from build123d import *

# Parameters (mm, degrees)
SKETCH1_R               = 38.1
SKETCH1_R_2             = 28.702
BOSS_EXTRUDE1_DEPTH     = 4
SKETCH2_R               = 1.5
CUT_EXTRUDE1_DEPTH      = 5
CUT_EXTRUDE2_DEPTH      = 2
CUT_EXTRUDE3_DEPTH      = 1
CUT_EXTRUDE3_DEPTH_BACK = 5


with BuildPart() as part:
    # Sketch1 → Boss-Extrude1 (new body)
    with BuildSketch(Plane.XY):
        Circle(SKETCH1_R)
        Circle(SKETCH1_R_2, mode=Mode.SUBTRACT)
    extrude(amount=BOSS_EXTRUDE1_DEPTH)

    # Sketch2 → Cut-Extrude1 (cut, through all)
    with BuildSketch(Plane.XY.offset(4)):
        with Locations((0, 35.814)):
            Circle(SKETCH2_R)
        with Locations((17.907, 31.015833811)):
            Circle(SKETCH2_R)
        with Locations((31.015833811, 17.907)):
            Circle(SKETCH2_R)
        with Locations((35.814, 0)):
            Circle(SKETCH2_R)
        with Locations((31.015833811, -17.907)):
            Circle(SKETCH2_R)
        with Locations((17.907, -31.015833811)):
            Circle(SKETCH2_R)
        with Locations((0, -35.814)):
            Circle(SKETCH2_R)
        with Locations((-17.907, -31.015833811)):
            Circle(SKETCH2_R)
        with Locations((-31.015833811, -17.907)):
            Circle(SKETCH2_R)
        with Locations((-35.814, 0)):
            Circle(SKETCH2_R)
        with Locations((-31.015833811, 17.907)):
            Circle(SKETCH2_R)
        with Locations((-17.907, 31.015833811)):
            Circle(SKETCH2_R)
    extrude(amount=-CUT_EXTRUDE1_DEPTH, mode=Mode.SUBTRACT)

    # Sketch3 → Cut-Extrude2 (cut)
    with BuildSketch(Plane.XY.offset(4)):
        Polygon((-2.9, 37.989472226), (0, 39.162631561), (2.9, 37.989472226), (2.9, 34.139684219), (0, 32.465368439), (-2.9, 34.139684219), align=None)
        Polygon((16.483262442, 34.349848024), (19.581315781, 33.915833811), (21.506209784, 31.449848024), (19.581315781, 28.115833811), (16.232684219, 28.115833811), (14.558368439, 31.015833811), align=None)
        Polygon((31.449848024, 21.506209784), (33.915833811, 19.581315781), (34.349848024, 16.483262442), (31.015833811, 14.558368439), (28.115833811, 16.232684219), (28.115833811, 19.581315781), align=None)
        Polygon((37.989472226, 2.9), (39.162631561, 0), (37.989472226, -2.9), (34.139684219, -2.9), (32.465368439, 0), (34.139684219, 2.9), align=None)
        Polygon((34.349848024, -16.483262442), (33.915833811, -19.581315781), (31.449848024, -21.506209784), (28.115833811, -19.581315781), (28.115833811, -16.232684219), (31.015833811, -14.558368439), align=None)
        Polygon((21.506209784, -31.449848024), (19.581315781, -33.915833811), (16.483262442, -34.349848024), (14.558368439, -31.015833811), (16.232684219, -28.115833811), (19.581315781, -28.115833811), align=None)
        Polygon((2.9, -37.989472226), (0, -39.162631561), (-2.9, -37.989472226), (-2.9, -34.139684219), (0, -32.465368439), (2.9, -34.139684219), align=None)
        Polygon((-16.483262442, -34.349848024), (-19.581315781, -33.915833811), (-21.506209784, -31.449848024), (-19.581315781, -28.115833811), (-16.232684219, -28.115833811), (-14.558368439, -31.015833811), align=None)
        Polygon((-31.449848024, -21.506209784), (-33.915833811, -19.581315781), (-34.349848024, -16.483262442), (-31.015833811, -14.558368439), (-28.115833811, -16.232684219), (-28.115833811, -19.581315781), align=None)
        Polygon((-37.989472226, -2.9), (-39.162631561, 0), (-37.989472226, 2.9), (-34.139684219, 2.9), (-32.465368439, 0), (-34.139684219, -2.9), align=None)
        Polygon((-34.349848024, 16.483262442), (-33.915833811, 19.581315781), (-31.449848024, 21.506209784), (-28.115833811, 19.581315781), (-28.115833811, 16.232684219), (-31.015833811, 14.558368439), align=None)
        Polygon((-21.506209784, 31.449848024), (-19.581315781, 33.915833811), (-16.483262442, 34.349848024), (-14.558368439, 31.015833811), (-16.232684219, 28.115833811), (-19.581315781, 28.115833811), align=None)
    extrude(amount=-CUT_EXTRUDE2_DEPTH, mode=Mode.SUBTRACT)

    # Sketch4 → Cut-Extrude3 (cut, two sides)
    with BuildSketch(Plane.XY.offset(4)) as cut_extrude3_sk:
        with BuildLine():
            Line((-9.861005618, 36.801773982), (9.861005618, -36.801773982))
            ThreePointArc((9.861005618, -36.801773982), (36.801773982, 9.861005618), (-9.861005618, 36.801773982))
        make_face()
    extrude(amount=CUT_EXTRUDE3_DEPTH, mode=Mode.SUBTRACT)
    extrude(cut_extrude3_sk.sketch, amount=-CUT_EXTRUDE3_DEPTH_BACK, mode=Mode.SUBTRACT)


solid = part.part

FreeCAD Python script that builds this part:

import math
import FreeCAD as App
import Part
import Sketcher
Q = App.Units.Quantity


def add_polygon(sketch, points):
    """Adds a closed chain of lines whose ends are joined by coincident constraints."""
    first, n = sketch.GeometryCount, len(points)
    for a, b in zip(points, points[1:] + points[:1]):
        sketch.addGeometry(Part.LineSegment(App.Vector(*a, 0), App.Vector(*b, 0)), False)
    for i in range(n):
        sketch.addConstraint(Sketcher.Constraint("Coincident", first + i, 2, first + (i + 1) % n, 1))

doc = App.newDocument("Part")
params = doc.addObject("Spreadsheet::Sheet", "Params")
for row, (alias, value) in enumerate([
    ("sketch1_diameter", "76.2 mm"),
    ("pad1_length", "4 mm"),
    ("sketch2_diameter", "3 mm"),
    ("pocket2_length", "2 mm"),
    ("sketch4_radius", "38.1 mm"),
], start=1):
    params.set(f"A{row}", alias)
    params.set(f"B{row}", "=" + value)
    params.setAlias(f"B{row}", alias)

body = doc.addObject("PartDesign::Body", "Body")

# Sketch on XY plane
sketch1 = doc.addObject("Sketcher::SketchObject", "Sketch")
body.addObject(sketch1)
sketch1.AttachmentSupport = (doc.XY_Plane, [""])
sketch1.MapMode = "FlatFace"
sketch1.addGeometry(Part.Circle(App.Vector(0, 0, 0), App.Vector(0, 0, 1), 38), False)
sketch1.addGeometry(Part.Circle(App.Vector(0, 0, 0), App.Vector(0, 0, 1), 29), False)
sketch1.addConstraint(Sketcher.Constraint("Coincident", 0, 3, -1, 1))
sketch1.addConstraint(Sketcher.Constraint("Coincident", 1, 3, -1, 1))
sketch1.addConstraint(Sketcher.Constraint("Diameter", 0, 76.2))
sketch1.addConstraint(Sketcher.Constraint("Diameter", 1, 57.404))
sketch1.setExpression("Constraints[2]", "Params.sketch1_diameter")
pad1 = doc.addObject("PartDesign::Pad", "Pad")
body.addObject(pad1)
pad1.Profile = sketch1
pad1.setExpression("Length", "Params.pad1_length")

# Sketch on XY plane
sketch2 = doc.addObject("Sketcher::SketchObject", "Sketch001")
body.addObject(sketch2)
sketch2.AttachmentSupport = (doc.XY_Plane, [""])
sketch2.MapMode = "FlatFace"
sketch2.AttachmentOffset = App.Placement(App.Vector(0, 0, 4), App.Rotation())
sketch2.addGeometry(Part.Circle(App.Vector(0, 35.8, 0), App.Vector(0, 0, 1), 1.5), False)
sketch2.addGeometry(Part.Circle(App.Vector(17.9, 31, 0), App.Vector(0, 0, 1), 1.5), False)
sketch2.addGeometry(Part.Circle(App.Vector(31, 17.9, 0), App.Vector(0, 0, 1), 1.5), False)
sketch2.addGeometry(Part.Circle(App.Vector(35.8, 0, 0), App.Vector(0, 0, 1), 1.5), False)
sketch2.addGeometry(Part.Circle(App.Vector(31, -17.9, 0), App.Vector(0, 0, 1), 1.5), False)
sketch2.addGeometry(Part.Circle(App.Vector(17.9, -31, 0), App.Vector(0, 0, 1), 1.5), False)
sketch2.addGeometry(Part.Circle(App.Vector(0, -35.8, 0), App.Vector(0, 0, 1), 1.5), False)
sketch2.addGeometry(Part.Circle(App.Vector(-17.9, -31, 0), App.Vector(0, 0, 1), 1.5), False)
sketch2.addGeometry(Part.Circle(App.Vector(-31, -17.9, 0), App.Vector(0, 0, 1), 1.5), False)
sketch2.addGeometry(Part.Circle(App.Vector(-35.8, 0, 0), App.Vector(0, 0, 1), 1.5), False)
sketch2.addGeometry(Part.Circle(App.Vector(-31, 17.9, 0), App.Vector(0, 0, 1), 1.5), False)
sketch2.addGeometry(Part.Circle(App.Vector(-17.9, 31, 0), App.Vector(0, 0, 1), 1.5), False)
sketch2.addConstraint(Sketcher.Constraint("Equal", 0, 1))
sketch2.addConstraint(Sketcher.Constraint("Equal", 1, 2))
sketch2.addConstraint(Sketcher.Constraint("Equal", 2, 3))
sketch2.addConstraint(Sketcher.Constraint("Equal", 3, 4))
sketch2.addConstraint(Sketcher.Constraint("Equal", 4, 5))
sketch2.addConstraint(Sketcher.Constraint("Equal", 5, 6))
sketch2.addConstraint(Sketcher.Constraint("Equal", 6, 7))
sketch2.addConstraint(Sketcher.Constraint("Equal", 7, 8))
sketch2.addConstraint(Sketcher.Constraint("Equal", 8, 9))
sketch2.addConstraint(Sketcher.Constraint("Equal", 9, 10))
sketch2.addConstraint(Sketcher.Constraint("Equal", 10, 11))
sketch2.addConstraint(Sketcher.Constraint("Symmetric", 0, 3, 6, 3, -1, 1))
sketch2.addConstraint(Sketcher.Constraint("Symmetric", 1, 3, 7, 3, -1, 1))
sketch2.addConstraint(Sketcher.Constraint("Symmetric", 2, 3, 8, 3, -1, 1))
sketch2.addConstraint(Sketcher.Constraint("Symmetric", 3, 3, 9, 3, -1, 1))
sketch2.addConstraint(Sketcher.Constraint("Symmetric", 4, 3, 10, 3, -1, 1))
sketch2.addConstraint(Sketcher.Constraint("Symmetric", 5, 3, 11, 3, -1, 1))
sketch2.addConstraint(Sketcher.Constraint("Symmetric", 5, 3, 7, 3, -2))
sketch2.addConstraint(Sketcher.Constraint("Symmetric", 4, 3, 8, 3, -2))
sketch2.addConstraint(Sketcher.Constraint("PointOnObject", 0, 3, -2))
sketch2.addConstraint(Sketcher.Constraint("PointOnObject", 3, 3, -1))
sketch2.addConstraint(Sketcher.Constraint("Diameter", 0, 3.0))
sketch2.addConstraint(Sketcher.Constraint("DistanceY", -1, 1, 0, 3, 35.814))
sketch2.addConstraint(Sketcher.Constraint("DistanceX", -1, 1, 1, 3, 17.907))
sketch2.addConstraint(Sketcher.Constraint("DistanceY", -1, 1, 2, 3, 17.907))
sketch2.addConstraint(Sketcher.Constraint("DistanceX", -1, 1, 3, 3, 35.814))
sketch2.addConstraint(Sketcher.Constraint("DistanceY", -1, 1, 1, 3, 31.015834))
sketch2.addConstraint(Sketcher.Constraint("DistanceX", -1, 1, 2, 3, 31.015834))
sketch2.setExpression("Constraints[21]", "Params.sketch2_diameter")
pocket1 = doc.addObject("PartDesign::Pocket", "Pocket")
body.addObject(pocket1)
pocket1.Profile = sketch2
pocket1.Type = "ThroughAll"

# Sketch on XY plane
sketch3 = doc.addObject("Sketcher::SketchObject", "Sketch002")
body.addObject(sketch3)
sketch3.AttachmentSupport = (doc.XY_Plane, [""])
sketch3.MapMode = "FlatFace"
sketch3.AttachmentOffset = App.Placement(App.Vector(0, 0, 4), App.Rotation())
add_polygon(sketch3, [(0, 39.2), (-2.9, 38), (-2.9, 34.1), (0, 32.5), (2.9, 34.1), (2.9, 38)])  # lines 0-5
add_polygon(sketch3, [(19.6, 33.9), (16.5, 34.3), (14.6, 31), (16.2, 28.1), (19.6, 28.1), (21.5, 31.4)])  # lines 6-11
add_polygon(sketch3, [(33.9, 19.6), (31.4, 21.5), (28.1, 19.6), (28.1, 16.2), (31, 14.6), (34.3, 16.5)])  # lines 12-17
add_polygon(sketch3, [(39.2, 0), (38, 2.9), (34.1, 2.9), (32.5, 0), (34.1, -2.9), (38, -2.9)])  # lines 18-23
add_polygon(sketch3, [(33.9, -19.6), (34.3, -16.5), (31, -14.6), (28.1, -16.2), (28.1, -19.6), (31.4, -21.5)])  # lines 24-29
add_polygon(sketch3, [(19.6, -33.9), (21.5, -31.4), (19.6, -28.1), (16.2, -28.1), (14.6, -31), (16.5, -34.3)])  # lines 30-35
add_polygon(sketch3, [(0, -39.2), (2.9, -38), (2.9, -34.1), (0, -32.5), (-2.9, -34.1), (-2.9, -38)])  # lines 36-41
add_polygon(sketch3, [(-19.6, -33.9), (-16.5, -34.3), (-14.6, -31), (-16.2, -28.1), (-19.6, -28.1), (-21.5, -31.4)])  # lines 42-47
add_polygon(sketch3, [(-33.9, -19.6), (-31.4, -21.5), (-28.1, -19.6), (-28.1, -16.2), (-31, -14.6), (-34.3, -16.5)])  # lines 48-53
add_polygon(sketch3, [(-39.2, 0), (-38, -2.9), (-34.1, -2.9), (-32.5, 0), (-34.1, 2.9), (-38, 2.9)])  # lines 54-59
add_polygon(sketch3, [(-33.9, 19.6), (-34.3, 16.5), (-31, 14.6), (-28.1, 16.2), (-28.1, 19.6), (-31.4, 21.5)])  # lines 60-65
add_polygon(sketch3, [(-19.6, 33.9), (-21.5, 31.4), (-19.6, 28.1), (-16.2, 28.1), (-14.6, 31), (-16.5, 34.3)])  # lines 66-71
sketch3.addConstraint(Sketcher.Constraint("Vertical", 1))
sketch3.addConstraint(Sketcher.Constraint("Vertical", 4))
sketch3.addConstraint(Sketcher.Constraint("Horizontal", 9))
sketch3.addConstraint(Sketcher.Constraint("Vertical", 14))
sketch3.addConstraint(Sketcher.Constraint("Horizontal", 19))
sketch3.addConstraint(Sketcher.Constraint("Horizontal", 22))
sketch3.addConstraint(Sketcher.Constraint("Vertical", 27))
sketch3.addConstraint(Sketcher.Constraint("Horizontal", 32))
sketch3.addConstraint(Sketcher.Constraint("Vertical", 37))
sketch3.addConstraint(Sketcher.Constraint("Vertical", 40))
sketch3.addConstraint(Sketcher.Constraint("Horizontal", 45))
sketch3.addConstraint(Sketcher.Constraint("Vertical", 50))
sketch3.addConstraint(Sketcher.Constraint("Horizontal", 55))
sketch3.addConstraint(Sketcher.Constraint("Horizontal", 58))
sketch3.addConstraint(Sketcher.Constraint("Vertical", 63))
sketch3.addConstraint(Sketcher.Constraint("Horizontal", 68))
sketch3.addConstraint(Sketcher.Constraint("Symmetric", 0, 2, 36, 2, -1, 1))
sketch3.addConstraint(Sketcher.Constraint("Symmetric", 2, 2, 38, 2, -1, 1))
sketch3.addConstraint(Sketcher.Constraint("Symmetric", 3, 2, 39, 2, -1, 1))
sketch3.addConstraint(Sketcher.Constraint("Symmetric", 5, 2, 41, 2, -1, 1))
sketch3.addConstraint(Sketcher.Constraint("Symmetric", 6, 2, 42, 2, -1, 1))
sketch3.addConstraint(Sketcher.Constraint("Symmetric", 7, 2, 43, 2, -1, 1))
sketch3.addConstraint(Sketcher.Constraint("Symmetric", 8, 2, 44, 2, -1, 1))
sketch3.addConstraint(Sketcher.Constraint("Symmetric", 10, 2, 46, 2, -1, 1))
sketch3.addConstraint(Sketcher.Constraint("Symmetric", 11, 2, 47, 2, -1, 1))
sketch3.addConstraint(Sketcher.Constraint("Symmetric", 12, 2, 48, 2, -1, 1))
sketch3.addConstraint(Sketcher.Constraint("Symmetric", 13, 2, 49, 2, -1, 1))
sketch3.addConstraint(Sketcher.Constraint("Symmetric", 15, 2, 51, 2, -1, 1))
sketch3.addConstraint(Sketcher.Constraint("Symmetric", 16, 2, 52, 2, -1, 1))
sketch3.addConstraint(Sketcher.Constraint("Symmetric", 17, 2, 53, 2, -1, 1))
sketch3.addConstraint(Sketcher.Constraint("Symmetric", 18, 2, 54, 2, -1, 1))
sketch3.addConstraint(Sketcher.Constraint("Symmetric", 20, 2, 56, 2, -1, 1))
sketch3.addConstraint(Sketcher.Constraint("Symmetric", 21, 2, 57, 2, -1, 1))
sketch3.addConstraint(Sketcher.Constraint("Symmetric", 23, 2, 59, 2, -1, 1))
sketch3.addConstraint(Sketcher.Constraint("Symmetric", 24, 2, 60, 2, -1, 1))
sketch3.addConstraint(Sketcher.Constraint("Symmetric", 25, 2, 61, 2, -1, 1))
sketch3.addConstraint(Sketcher.Constraint("Symmetric", 26, 2, 62, 2, -1, 1))
sketch3.addConstraint(Sketcher.Constraint("Symmetric", 28, 2, 64, 2, -1, 1))
sketch3.addConstraint(Sketcher.Constraint("Symmetric", 29, 2, 65, 2, -1, 1))
sketch3.addConstraint(Sketcher.Constraint("Symmetric", 30, 2, 66, 2, -1, 1))
sketch3.addConstraint(Sketcher.Constraint("Symmetric", 31, 2, 67, 2, -1, 1))
sketch3.addConstraint(Sketcher.Constraint("Symmetric", 33, 2, 69, 2, -1, 1))
sketch3.addConstraint(Sketcher.Constraint("Symmetric", 34, 2, 70, 2, -1, 1))
sketch3.addConstraint(Sketcher.Constraint("Symmetric", 35, 2, 71, 2, -1, 1))
sketch3.addConstraint(Sketcher.Constraint("Symmetric", 1, 2, 3, 2, -2))
sketch3.addConstraint(Sketcher.Constraint("Symmetric", 34, 2, 42, 2, -2))
sketch3.addConstraint(Sketcher.Constraint("Symmetric", 33, 2, 43, 2, -2))
sketch3.addConstraint(Sketcher.Constraint("Symmetric", 32, 2, 44, 2, -2))
sketch3.addConstraint(Sketcher.Constraint("Symmetric", 30, 2, 46, 2, -2))
sketch3.addConstraint(Sketcher.Constraint("Symmetric", 35, 2, 47, 2, -2))
sketch3.addConstraint(Sketcher.Constraint("Symmetric", 28, 2, 48, 2, -2))
sketch3.addConstraint(Sketcher.Constraint("Symmetric", 27, 2, 49, 2, -2))
sketch3.addConstraint(Sketcher.Constraint("Symmetric", 25, 2, 51, 2, -2))
sketch3.addConstraint(Sketcher.Constraint("Symmetric", 24, 2, 52, 2, -2))
sketch3.addConstraint(Sketcher.Constraint("Symmetric", 29, 2, 53, 2, -2))
sketch3.addConstraint(Sketcher.Constraint("Symmetric", 22, 2, 54, 2, -2))
sketch3.addConstraint(Sketcher.Constraint("PointOnObject", 2, 2, -2))
sketch3.addConstraint(Sketcher.Constraint("PointOnObject", 5, 2, -2))
sketch3.addConstraint(Sketcher.Constraint("PointOnObject", 20, 2, -1))
sketch3.addConstraint(Sketcher.Constraint("PointOnObject", 23, 2, -1))
sketch3.addConstraint(Sketcher.Constraint("Perpendicular", 2, 7))
sketch3.addConstraint(Sketcher.Constraint("Perpendicular", 3, 8))
sketch3.addConstraint(Sketcher.Constraint("Parallel", 7, 10))
sketch3.addConstraint(Sketcher.Constraint("Perpendicular", 8, 13))
sketch3.addConstraint(Sketcher.Constraint("Perpendicular", 10, 15))
sketch3.addConstraint(Sketcher.Constraint("Parallel", 13, 16))
sketch3.addConstraint(Sketcher.Constraint("Perpendicular", 0, 18))
sketch3.addConstraint(Sketcher.Constraint("Perpendicular", 15, 20))
sketch3.addConstraint(Sketcher.Constraint("Perpendicular", 16, 21))
sketch3.addConstraint(Sketcher.Constraint("Perpendicular", 5, 23))
sketch3.addConstraint(Sketcher.Constraint("Perpendicular", 6, 24))
sketch3.addConstraint(Sketcher.Constraint("Perpendicular", 21, 26))
sketch3.addConstraint(Sketcher.Constraint("Perpendicular", 11, 29))
sketch3.addConstraint(Sketcher.Constraint("Perpendicular", 26, 31))
sketch3.addConstraint(Sketcher.Constraint("Perpendicular", 33, 38))
sketch3.addConstraint(Sketcher.Constraint("Perpendicular", 23, 41))
sketch3.addConstraint(Sketcher.Constraint("Parallel", 43, 46))
sketch3.addConstraint(Sketcher.Constraint("Perpendicular", 46, 51))
sketch3.addConstraint(Sketcher.Constraint("Perpendicular", 51, 56))
sketch3.addConstraint(Sketcher.Constraint("Perpendicular", 41, 59))
sketch3.addConstraint(Sketcher.Constraint("Parallel", 61, 64))
sketch3.addConstraint(Sketcher.Constraint("Perpendicular", 64, 69))
sketch3.addConstraint(Sketcher.Constraint("Horizontal", 13, 2, 17, 2))
sketch3.addConstraint(Sketcher.Constraint("Vertical", 9, 2, 11, 2))
sketch3.addConstraint(Sketcher.Constraint("Equal", 58, 1))
sketch3.addConstraint(Sketcher.Constraint("Equal", 68, 14))
sketch3.addConstraint(Sketcher.Constraint("Equal", 5, 6))
sketch3.addConstraint(Sketcher.Constraint("Equal", 3, 8))
sketch3.addConstraint(Sketcher.Constraint("Equal", 7, 10))
sketch3.addConstraint(Sketcher.Constraint("Equal", 6, 11))
sketch3.addConstraint(Sketcher.Constraint("Equal", 11, 12))
sketch3.addConstraint(Sketcher.Constraint("Equal", 8, 15))
sketch3.addConstraint(Sketcher.Constraint("Equal", 17, 18))
sketch3.addConstraint(Sketcher.Constraint("Angle", 2, Q("-30 deg")))
sketch3.addConstraint(Sketcher.Constraint("DistanceX", 0, 2, -1, 1, 2.9))
sketch3.addConstraint(Sketcher.Constraint("DistanceX", 9, 1, 9, 2, 3.348632))
sketch3.addConstraint(Sketcher.Constraint("DistanceX", 19, 2, 19, 1, 3.849788))
sketch3.addConstraint(Sketcher.Constraint("Distance", 7, 3.849788))
sketch3.addConstraint(Sketcher.Constraint("DistanceY", -1, 1, 2, 2, 32.465368))
sketch3.addConstraint(Sketcher.Constraint("DistanceY", -1, 1, 6, 2, 34.349848))
sketch3.addConstraint(Sketcher.Constraint("DistanceX", -1, 1, 7, 2, 14.558368))
sketch3.addConstraint(Sketcher.Constraint("DistanceX", -1, 1, 12, 2, 31.449848))
sketch3.addConstraint(Sketcher.Constraint("DistanceY", -1, 1, 12, 2, 21.50621))
sketch3.addConstraint(Sketcher.Constraint("DistanceX", -1, 1, 20, 2, 32.465368))
pocket2 = doc.addObject("PartDesign::Pocket", "Pocket001")
body.addObject(pocket2)
pocket2.Profile = sketch3
pocket2.setExpression("Length", "Params.pocket2_length")

# Sketch on XY plane
sketch4 = doc.addObject("Sketcher::SketchObject", "Sketch003")
body.addObject(sketch4)
sketch4.AttachmentSupport = (doc.XY_Plane, [""])
sketch4.MapMode = "FlatFace"
sketch4.AttachmentOffset = App.Placement(App.Vector(0, 0, 4), App.Rotation())
sketch4.addGeometry(Part.LineSegment(App.Vector(-10, 37, 0), App.Vector(10, -37, 0)), False)
sketch4.addGeometry(Part.ArcOfCircle(Part.Circle(App.Vector(0, 0, 0), App.Vector(0, 0, 1), 38), math.radians(-75), math.radians(105)), False)
sketch4.addConstraint(Sketcher.Constraint("Coincident", 0, 1, 1, 2))
sketch4.addConstraint(Sketcher.Constraint("Coincident", 1, 1, 0, 2))
sketch4.addConstraint(Sketcher.Constraint("Coincident", 1, 3, -1, 1))
sketch4.addConstraint(Sketcher.Constraint("Radius", 1, 38.1))
sketch4.addConstraint(Sketcher.Constraint("Angle", 0, Q("-75 deg")))
sketch4.addConstraint(Sketcher.Constraint("DistanceX", 0, 1, -1, 1, 9.861006))
sketch4.setExpression("Constraints[3]", "Params.sketch4_radius")
pocket3 = doc.addObject("PartDesign::Pocket", "Pocket002")
body.addObject(pocket3)
pocket3.Profile = sketch4
pocket3.Type = "ThroughAll"
pocket3.Midplane = True

doc.recompute()
